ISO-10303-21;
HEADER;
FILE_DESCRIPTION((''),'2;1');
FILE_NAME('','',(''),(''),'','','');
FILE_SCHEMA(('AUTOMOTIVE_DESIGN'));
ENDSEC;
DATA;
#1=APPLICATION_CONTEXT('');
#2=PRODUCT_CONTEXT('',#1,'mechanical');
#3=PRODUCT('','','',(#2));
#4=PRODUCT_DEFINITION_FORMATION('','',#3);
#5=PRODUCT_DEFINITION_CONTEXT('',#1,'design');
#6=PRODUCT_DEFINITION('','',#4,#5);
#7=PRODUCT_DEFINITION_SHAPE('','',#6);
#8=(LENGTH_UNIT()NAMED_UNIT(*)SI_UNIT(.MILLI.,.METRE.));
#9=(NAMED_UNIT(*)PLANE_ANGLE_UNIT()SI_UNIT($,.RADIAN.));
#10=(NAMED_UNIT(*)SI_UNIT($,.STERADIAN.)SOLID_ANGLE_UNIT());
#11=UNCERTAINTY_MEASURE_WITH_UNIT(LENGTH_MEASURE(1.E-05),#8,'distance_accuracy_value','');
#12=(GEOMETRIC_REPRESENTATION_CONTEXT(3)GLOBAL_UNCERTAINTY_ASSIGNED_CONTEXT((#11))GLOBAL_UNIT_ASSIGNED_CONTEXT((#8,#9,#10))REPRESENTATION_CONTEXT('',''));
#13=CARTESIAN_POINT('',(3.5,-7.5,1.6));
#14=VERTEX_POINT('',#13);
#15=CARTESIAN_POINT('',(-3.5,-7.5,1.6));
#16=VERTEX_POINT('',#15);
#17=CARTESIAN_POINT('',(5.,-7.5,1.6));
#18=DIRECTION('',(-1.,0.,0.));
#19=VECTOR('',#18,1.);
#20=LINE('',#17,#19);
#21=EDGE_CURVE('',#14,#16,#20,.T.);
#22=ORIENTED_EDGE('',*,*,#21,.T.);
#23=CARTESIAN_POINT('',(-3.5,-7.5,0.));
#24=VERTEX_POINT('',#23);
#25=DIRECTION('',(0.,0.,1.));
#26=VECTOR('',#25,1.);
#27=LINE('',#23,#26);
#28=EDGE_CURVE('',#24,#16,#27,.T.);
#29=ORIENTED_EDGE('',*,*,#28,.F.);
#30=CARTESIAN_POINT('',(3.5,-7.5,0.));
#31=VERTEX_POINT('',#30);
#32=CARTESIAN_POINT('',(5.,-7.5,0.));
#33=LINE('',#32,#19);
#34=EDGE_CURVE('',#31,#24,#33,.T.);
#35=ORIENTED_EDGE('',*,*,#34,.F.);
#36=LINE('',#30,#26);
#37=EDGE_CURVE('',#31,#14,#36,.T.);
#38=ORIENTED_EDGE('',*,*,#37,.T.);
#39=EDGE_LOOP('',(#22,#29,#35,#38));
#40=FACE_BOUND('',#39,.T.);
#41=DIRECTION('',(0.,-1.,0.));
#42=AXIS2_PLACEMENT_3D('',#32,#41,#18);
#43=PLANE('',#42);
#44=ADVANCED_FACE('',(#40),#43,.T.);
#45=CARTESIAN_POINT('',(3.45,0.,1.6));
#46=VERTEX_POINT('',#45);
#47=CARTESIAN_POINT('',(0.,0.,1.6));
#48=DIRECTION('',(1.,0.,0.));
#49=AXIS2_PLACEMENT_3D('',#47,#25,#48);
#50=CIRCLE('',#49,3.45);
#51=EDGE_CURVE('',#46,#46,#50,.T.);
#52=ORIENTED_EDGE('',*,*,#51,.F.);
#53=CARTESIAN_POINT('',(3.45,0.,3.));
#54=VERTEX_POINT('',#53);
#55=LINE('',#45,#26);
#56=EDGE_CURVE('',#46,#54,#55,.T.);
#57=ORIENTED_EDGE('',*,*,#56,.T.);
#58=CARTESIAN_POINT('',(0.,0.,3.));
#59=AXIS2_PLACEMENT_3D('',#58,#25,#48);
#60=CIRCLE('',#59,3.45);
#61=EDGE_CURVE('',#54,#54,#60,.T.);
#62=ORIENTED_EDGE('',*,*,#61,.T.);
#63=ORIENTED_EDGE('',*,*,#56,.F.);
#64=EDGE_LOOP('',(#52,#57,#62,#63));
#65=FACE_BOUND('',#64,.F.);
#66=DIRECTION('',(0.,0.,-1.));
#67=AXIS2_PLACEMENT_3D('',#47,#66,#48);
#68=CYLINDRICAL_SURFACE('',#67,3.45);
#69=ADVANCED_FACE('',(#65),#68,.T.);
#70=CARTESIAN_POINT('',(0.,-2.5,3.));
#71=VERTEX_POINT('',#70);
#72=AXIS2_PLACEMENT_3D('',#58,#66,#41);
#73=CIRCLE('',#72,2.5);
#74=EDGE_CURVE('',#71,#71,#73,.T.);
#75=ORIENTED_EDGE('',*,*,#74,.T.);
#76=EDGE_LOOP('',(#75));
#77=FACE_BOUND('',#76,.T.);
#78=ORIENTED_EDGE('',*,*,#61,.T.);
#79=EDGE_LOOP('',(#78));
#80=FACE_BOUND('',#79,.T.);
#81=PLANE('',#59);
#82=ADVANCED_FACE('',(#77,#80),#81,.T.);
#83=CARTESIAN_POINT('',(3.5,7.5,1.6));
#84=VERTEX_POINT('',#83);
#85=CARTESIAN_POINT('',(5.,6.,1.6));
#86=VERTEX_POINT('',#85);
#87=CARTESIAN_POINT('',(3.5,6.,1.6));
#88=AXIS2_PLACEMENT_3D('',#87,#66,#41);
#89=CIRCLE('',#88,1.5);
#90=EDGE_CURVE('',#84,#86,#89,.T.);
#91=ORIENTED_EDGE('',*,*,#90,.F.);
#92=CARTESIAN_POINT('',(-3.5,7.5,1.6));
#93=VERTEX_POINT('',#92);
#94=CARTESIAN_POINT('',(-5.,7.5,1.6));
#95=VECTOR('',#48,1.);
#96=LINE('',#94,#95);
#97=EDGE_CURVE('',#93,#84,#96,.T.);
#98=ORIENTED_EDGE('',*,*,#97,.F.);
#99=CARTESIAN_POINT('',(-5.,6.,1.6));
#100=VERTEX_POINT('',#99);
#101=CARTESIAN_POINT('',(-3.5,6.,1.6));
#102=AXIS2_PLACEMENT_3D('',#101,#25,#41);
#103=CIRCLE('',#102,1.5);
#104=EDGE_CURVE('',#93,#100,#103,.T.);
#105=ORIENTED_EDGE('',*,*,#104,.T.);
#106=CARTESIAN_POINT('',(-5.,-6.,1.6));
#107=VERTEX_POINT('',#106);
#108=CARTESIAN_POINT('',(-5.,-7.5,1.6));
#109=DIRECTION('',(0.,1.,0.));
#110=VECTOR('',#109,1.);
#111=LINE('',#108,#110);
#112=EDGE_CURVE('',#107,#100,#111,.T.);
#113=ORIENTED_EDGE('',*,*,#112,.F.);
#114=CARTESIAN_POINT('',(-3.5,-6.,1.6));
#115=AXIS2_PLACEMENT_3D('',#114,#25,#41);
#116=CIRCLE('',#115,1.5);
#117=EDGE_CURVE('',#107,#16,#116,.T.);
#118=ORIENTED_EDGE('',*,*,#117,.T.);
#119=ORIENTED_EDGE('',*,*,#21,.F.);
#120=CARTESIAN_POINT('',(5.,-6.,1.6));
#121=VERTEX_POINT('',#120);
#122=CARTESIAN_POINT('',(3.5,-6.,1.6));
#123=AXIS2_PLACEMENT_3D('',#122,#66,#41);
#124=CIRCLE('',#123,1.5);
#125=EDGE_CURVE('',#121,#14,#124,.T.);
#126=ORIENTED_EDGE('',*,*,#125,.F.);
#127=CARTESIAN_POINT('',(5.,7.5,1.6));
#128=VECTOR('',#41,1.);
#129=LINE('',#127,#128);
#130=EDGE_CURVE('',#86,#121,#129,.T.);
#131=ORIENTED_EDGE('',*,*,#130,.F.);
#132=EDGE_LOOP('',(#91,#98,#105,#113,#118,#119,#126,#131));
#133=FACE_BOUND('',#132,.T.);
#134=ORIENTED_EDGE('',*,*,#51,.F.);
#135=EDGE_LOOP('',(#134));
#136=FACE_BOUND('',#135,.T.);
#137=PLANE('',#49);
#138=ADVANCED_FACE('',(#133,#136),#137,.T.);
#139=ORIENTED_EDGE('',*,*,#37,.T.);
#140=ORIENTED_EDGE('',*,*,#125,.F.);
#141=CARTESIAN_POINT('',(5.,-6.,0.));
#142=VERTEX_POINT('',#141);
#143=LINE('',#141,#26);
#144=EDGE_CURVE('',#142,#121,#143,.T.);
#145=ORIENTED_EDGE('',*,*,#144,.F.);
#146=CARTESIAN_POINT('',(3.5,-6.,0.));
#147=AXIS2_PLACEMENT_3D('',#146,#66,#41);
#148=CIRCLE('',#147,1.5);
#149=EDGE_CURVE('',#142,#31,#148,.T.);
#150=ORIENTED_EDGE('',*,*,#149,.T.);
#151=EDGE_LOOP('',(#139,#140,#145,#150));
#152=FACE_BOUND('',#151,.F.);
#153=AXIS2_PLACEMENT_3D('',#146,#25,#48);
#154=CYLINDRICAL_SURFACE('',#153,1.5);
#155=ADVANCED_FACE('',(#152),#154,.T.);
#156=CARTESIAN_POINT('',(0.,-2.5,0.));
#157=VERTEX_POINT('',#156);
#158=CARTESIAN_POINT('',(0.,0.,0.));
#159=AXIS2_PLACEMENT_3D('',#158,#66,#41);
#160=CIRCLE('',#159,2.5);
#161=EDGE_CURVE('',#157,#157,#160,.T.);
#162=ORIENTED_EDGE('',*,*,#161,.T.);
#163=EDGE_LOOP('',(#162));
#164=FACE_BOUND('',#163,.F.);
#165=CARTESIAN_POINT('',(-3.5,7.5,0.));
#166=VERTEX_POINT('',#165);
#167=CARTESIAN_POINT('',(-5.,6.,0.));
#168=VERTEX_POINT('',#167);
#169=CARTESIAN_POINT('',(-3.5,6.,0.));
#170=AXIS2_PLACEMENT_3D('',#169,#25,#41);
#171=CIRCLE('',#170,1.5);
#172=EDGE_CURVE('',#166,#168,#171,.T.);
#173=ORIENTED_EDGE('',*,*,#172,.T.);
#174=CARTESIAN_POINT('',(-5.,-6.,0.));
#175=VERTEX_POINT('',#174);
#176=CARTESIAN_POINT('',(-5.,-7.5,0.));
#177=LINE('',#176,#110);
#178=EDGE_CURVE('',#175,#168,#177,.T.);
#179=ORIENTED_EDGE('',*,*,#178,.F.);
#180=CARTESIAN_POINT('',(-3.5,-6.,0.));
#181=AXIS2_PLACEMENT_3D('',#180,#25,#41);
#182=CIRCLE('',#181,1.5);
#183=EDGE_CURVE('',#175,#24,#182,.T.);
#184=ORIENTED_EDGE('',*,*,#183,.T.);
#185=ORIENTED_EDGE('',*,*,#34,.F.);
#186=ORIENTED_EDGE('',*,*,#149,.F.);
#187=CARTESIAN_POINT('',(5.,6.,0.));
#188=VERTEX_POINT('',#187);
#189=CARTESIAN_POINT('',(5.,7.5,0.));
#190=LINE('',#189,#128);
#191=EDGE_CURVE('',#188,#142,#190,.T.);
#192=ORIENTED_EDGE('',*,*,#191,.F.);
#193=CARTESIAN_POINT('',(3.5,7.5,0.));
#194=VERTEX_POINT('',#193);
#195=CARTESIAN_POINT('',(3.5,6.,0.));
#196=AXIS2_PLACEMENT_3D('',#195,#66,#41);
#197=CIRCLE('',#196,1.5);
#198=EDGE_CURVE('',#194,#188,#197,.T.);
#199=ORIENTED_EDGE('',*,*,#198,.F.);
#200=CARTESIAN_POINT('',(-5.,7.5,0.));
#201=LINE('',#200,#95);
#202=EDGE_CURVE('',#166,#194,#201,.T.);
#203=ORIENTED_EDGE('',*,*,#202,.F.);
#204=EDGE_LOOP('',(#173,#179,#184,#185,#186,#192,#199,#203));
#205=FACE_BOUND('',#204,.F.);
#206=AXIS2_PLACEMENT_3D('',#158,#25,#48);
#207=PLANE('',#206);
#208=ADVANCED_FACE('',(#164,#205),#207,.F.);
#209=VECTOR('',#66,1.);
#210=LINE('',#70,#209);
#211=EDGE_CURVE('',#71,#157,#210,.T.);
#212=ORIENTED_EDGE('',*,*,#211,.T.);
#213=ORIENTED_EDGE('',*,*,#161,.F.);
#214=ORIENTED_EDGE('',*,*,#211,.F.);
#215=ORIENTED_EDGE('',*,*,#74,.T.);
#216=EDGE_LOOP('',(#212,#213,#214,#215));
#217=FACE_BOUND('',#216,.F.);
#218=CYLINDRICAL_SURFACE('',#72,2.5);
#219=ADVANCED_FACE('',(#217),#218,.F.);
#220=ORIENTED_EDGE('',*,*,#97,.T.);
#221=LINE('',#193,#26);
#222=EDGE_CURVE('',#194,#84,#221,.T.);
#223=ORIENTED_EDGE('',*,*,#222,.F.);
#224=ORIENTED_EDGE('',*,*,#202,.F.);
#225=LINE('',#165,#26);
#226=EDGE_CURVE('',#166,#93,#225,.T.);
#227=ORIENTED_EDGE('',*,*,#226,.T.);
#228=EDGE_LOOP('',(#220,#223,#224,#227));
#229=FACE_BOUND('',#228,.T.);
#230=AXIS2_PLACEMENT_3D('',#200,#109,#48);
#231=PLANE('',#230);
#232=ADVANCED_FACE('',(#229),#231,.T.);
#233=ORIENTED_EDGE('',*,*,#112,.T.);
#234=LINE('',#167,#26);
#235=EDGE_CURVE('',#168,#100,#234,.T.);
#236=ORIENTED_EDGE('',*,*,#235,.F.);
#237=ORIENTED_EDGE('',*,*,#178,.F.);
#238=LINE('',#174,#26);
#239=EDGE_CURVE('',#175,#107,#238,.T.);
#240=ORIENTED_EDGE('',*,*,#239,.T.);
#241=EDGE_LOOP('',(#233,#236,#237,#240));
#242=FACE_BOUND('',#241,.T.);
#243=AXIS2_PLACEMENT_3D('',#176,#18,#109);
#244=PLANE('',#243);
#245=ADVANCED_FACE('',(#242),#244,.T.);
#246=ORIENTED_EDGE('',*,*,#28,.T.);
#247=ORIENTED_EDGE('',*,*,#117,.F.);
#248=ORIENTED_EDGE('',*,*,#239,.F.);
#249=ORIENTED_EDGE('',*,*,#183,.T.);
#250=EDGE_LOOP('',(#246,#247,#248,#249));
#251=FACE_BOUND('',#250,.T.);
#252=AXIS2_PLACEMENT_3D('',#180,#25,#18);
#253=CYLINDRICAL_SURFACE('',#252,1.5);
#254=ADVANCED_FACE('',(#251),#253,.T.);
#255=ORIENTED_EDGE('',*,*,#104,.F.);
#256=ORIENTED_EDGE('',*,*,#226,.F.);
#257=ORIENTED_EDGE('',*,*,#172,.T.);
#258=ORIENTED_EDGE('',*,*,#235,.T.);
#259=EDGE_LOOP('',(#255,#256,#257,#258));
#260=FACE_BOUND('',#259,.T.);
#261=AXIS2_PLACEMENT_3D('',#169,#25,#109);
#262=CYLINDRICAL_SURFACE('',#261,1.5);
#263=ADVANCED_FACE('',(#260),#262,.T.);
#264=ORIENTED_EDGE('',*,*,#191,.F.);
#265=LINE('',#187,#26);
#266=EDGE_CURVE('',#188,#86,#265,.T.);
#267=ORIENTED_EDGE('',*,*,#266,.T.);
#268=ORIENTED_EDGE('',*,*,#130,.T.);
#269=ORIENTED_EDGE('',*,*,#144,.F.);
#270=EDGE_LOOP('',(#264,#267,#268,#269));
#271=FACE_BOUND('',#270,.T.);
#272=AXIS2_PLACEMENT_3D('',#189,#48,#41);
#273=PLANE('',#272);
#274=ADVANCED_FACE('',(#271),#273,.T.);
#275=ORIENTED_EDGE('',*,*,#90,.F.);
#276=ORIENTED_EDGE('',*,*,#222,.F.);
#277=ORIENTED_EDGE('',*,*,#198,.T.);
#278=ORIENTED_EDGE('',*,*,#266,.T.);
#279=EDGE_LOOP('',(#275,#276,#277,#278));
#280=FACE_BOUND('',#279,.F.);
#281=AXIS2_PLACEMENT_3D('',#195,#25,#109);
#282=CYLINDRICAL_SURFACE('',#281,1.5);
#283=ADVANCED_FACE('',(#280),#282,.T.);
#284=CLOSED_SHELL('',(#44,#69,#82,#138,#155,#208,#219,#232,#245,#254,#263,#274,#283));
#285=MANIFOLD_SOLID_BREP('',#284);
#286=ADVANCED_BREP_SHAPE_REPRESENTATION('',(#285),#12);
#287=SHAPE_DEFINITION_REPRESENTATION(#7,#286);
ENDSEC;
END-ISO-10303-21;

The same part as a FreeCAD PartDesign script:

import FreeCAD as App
import Part
import Sketcher
from FreeCAD import Vector
Q = App.Units.Quantity


def edges_at(feature, points):
    """Names of the edges that pass closest to the given points."""
    edges = feature.Shape.Edges
    near = lambda p: min(range(len(edges)), key=lambda i: edges[i].distToShape(Part.Vertex(*p))[0])
    return sorted({f"Edge{near(p) + 1}" for p in points})


def add_polygon(sketch, points):
    """Adds a closed chain of lines whose ends are joined by coincident constraints."""
    first, n = sketch.GeometryCount, len(points)
    for a, b in zip(points, points[1:] + points[:1]):
        sketch.addGeometry(Part.LineSegment(App.Vector(*a, 0), App.Vector(*b, 0)), False)
    for i in range(n):
        sketch.addConstraint(Sketcher.Constraint("Coincident", first + i, 2, first + (i + 1) % n, 1))

doc = App.newDocument("Part")
body = doc.addObject("PartDesign::Body", "Body")

# Sketch on XY plane
sketch1 = body.newObject("Sketcher::SketchObject", "Sketch")
sketch1.AttachmentSupport = (doc.getObject("XY_Plane"), [""])
sketch1.MapMode = "FlatFace"
add_polygon(sketch1, [(5, 8), (-5, 8), (-5, -8), (5, -8)])  # lines 0-3
sketch1.addConstraint(Sketcher.Constraint("Horizontal", 0))
sketch1.addConstraint(Sketcher.Constraint("Vertical", 1))
sketch1.addConstraint(Sketcher.Constraint("Horizontal", 2))
sketch1.addConstraint(Sketcher.Constraint("Vertical", 3))
sketch1.addConstraint(Sketcher.Constraint("Symmetric", 0, 2, 2, 2, -1, 1))
sketch1.addConstraint(Sketcher.Constraint("DistanceX", 0, 2, 0, 1, Q("10 mm")))
sketch1.addConstraint(Sketcher.Constraint("DistanceY", 1, 2, 1, 1, Q("15 mm")))
pad1 = body.newObject("PartDesign::Pad", "Pad")
pad1.Profile = sketch1
pad1.Length = 1.6

# Sketch on XY plane
sketch2 = body.newObject("Sketcher::SketchObject", "Sketch001")
sketch2.AttachmentSupport = (doc.getObject("XY_Plane"), [""])
sketch2.MapMode = "FlatFace"
sketch2.AttachmentOffset = App.Placement(Vector(0, 0, 1.6), App.Rotation())
sketch2.addGeometry(Part.Circle(Vector(0, 0, 0), Vector(0, 0, 1), 3.5), False)
sketch2.addConstraint(Sketcher.Constraint("Coincident", 0, 3, -1, 1))
sketch2.addConstraint(Sketcher.Constraint("Diameter", 0, Q("6.9 mm")))
pad2 = body.newObject("PartDesign::Pad", "Pad001")
pad2.Profile = sketch2
pad2.Length = 1.4

# Sketch on XY plane
sketch3 = body.newObject("Sketcher::SketchObject", "Sketch002")
sketch3.AttachmentSupport = (doc.getObject("XY_Plane"), [""])
sketch3.MapMode = "FlatFace"
sketch3.AttachmentOffset = App.Placement(Vector(0, 0, 3), App.Rotation())
sketch3.addGeometry(Part.Circle(Vector(0, 0, 0), Vector(0, 0, 1), 2.5), False)
sketch3.addConstraint(Sketcher.Constraint("Coincident", 0, 3, -1, 1))
sketch3.addConstraint(Sketcher.Constraint("Diameter", 0, Q("5 mm")))
doc.recompute()
hole = body.newObject("PartDesign::Hole", "Hole")
hole.Profile = sketch3
hole.ThreadType = "None"
hole.Diameter = 5
hole.DepthType = "ThroughAll"
doc.recompute()

fillet = body.newObject("PartDesign::Fillet", "Fillet")
fillet.Base = (hole, edges_at(hole, [
    (5, 7.5, 0.8),
    (-5, 7.5, 0.8),
    (5, -7.5, 0.8),
    (-5, -7.5, 0.8),
]))
fillet.Radius = 1.5

doc.recompute()
